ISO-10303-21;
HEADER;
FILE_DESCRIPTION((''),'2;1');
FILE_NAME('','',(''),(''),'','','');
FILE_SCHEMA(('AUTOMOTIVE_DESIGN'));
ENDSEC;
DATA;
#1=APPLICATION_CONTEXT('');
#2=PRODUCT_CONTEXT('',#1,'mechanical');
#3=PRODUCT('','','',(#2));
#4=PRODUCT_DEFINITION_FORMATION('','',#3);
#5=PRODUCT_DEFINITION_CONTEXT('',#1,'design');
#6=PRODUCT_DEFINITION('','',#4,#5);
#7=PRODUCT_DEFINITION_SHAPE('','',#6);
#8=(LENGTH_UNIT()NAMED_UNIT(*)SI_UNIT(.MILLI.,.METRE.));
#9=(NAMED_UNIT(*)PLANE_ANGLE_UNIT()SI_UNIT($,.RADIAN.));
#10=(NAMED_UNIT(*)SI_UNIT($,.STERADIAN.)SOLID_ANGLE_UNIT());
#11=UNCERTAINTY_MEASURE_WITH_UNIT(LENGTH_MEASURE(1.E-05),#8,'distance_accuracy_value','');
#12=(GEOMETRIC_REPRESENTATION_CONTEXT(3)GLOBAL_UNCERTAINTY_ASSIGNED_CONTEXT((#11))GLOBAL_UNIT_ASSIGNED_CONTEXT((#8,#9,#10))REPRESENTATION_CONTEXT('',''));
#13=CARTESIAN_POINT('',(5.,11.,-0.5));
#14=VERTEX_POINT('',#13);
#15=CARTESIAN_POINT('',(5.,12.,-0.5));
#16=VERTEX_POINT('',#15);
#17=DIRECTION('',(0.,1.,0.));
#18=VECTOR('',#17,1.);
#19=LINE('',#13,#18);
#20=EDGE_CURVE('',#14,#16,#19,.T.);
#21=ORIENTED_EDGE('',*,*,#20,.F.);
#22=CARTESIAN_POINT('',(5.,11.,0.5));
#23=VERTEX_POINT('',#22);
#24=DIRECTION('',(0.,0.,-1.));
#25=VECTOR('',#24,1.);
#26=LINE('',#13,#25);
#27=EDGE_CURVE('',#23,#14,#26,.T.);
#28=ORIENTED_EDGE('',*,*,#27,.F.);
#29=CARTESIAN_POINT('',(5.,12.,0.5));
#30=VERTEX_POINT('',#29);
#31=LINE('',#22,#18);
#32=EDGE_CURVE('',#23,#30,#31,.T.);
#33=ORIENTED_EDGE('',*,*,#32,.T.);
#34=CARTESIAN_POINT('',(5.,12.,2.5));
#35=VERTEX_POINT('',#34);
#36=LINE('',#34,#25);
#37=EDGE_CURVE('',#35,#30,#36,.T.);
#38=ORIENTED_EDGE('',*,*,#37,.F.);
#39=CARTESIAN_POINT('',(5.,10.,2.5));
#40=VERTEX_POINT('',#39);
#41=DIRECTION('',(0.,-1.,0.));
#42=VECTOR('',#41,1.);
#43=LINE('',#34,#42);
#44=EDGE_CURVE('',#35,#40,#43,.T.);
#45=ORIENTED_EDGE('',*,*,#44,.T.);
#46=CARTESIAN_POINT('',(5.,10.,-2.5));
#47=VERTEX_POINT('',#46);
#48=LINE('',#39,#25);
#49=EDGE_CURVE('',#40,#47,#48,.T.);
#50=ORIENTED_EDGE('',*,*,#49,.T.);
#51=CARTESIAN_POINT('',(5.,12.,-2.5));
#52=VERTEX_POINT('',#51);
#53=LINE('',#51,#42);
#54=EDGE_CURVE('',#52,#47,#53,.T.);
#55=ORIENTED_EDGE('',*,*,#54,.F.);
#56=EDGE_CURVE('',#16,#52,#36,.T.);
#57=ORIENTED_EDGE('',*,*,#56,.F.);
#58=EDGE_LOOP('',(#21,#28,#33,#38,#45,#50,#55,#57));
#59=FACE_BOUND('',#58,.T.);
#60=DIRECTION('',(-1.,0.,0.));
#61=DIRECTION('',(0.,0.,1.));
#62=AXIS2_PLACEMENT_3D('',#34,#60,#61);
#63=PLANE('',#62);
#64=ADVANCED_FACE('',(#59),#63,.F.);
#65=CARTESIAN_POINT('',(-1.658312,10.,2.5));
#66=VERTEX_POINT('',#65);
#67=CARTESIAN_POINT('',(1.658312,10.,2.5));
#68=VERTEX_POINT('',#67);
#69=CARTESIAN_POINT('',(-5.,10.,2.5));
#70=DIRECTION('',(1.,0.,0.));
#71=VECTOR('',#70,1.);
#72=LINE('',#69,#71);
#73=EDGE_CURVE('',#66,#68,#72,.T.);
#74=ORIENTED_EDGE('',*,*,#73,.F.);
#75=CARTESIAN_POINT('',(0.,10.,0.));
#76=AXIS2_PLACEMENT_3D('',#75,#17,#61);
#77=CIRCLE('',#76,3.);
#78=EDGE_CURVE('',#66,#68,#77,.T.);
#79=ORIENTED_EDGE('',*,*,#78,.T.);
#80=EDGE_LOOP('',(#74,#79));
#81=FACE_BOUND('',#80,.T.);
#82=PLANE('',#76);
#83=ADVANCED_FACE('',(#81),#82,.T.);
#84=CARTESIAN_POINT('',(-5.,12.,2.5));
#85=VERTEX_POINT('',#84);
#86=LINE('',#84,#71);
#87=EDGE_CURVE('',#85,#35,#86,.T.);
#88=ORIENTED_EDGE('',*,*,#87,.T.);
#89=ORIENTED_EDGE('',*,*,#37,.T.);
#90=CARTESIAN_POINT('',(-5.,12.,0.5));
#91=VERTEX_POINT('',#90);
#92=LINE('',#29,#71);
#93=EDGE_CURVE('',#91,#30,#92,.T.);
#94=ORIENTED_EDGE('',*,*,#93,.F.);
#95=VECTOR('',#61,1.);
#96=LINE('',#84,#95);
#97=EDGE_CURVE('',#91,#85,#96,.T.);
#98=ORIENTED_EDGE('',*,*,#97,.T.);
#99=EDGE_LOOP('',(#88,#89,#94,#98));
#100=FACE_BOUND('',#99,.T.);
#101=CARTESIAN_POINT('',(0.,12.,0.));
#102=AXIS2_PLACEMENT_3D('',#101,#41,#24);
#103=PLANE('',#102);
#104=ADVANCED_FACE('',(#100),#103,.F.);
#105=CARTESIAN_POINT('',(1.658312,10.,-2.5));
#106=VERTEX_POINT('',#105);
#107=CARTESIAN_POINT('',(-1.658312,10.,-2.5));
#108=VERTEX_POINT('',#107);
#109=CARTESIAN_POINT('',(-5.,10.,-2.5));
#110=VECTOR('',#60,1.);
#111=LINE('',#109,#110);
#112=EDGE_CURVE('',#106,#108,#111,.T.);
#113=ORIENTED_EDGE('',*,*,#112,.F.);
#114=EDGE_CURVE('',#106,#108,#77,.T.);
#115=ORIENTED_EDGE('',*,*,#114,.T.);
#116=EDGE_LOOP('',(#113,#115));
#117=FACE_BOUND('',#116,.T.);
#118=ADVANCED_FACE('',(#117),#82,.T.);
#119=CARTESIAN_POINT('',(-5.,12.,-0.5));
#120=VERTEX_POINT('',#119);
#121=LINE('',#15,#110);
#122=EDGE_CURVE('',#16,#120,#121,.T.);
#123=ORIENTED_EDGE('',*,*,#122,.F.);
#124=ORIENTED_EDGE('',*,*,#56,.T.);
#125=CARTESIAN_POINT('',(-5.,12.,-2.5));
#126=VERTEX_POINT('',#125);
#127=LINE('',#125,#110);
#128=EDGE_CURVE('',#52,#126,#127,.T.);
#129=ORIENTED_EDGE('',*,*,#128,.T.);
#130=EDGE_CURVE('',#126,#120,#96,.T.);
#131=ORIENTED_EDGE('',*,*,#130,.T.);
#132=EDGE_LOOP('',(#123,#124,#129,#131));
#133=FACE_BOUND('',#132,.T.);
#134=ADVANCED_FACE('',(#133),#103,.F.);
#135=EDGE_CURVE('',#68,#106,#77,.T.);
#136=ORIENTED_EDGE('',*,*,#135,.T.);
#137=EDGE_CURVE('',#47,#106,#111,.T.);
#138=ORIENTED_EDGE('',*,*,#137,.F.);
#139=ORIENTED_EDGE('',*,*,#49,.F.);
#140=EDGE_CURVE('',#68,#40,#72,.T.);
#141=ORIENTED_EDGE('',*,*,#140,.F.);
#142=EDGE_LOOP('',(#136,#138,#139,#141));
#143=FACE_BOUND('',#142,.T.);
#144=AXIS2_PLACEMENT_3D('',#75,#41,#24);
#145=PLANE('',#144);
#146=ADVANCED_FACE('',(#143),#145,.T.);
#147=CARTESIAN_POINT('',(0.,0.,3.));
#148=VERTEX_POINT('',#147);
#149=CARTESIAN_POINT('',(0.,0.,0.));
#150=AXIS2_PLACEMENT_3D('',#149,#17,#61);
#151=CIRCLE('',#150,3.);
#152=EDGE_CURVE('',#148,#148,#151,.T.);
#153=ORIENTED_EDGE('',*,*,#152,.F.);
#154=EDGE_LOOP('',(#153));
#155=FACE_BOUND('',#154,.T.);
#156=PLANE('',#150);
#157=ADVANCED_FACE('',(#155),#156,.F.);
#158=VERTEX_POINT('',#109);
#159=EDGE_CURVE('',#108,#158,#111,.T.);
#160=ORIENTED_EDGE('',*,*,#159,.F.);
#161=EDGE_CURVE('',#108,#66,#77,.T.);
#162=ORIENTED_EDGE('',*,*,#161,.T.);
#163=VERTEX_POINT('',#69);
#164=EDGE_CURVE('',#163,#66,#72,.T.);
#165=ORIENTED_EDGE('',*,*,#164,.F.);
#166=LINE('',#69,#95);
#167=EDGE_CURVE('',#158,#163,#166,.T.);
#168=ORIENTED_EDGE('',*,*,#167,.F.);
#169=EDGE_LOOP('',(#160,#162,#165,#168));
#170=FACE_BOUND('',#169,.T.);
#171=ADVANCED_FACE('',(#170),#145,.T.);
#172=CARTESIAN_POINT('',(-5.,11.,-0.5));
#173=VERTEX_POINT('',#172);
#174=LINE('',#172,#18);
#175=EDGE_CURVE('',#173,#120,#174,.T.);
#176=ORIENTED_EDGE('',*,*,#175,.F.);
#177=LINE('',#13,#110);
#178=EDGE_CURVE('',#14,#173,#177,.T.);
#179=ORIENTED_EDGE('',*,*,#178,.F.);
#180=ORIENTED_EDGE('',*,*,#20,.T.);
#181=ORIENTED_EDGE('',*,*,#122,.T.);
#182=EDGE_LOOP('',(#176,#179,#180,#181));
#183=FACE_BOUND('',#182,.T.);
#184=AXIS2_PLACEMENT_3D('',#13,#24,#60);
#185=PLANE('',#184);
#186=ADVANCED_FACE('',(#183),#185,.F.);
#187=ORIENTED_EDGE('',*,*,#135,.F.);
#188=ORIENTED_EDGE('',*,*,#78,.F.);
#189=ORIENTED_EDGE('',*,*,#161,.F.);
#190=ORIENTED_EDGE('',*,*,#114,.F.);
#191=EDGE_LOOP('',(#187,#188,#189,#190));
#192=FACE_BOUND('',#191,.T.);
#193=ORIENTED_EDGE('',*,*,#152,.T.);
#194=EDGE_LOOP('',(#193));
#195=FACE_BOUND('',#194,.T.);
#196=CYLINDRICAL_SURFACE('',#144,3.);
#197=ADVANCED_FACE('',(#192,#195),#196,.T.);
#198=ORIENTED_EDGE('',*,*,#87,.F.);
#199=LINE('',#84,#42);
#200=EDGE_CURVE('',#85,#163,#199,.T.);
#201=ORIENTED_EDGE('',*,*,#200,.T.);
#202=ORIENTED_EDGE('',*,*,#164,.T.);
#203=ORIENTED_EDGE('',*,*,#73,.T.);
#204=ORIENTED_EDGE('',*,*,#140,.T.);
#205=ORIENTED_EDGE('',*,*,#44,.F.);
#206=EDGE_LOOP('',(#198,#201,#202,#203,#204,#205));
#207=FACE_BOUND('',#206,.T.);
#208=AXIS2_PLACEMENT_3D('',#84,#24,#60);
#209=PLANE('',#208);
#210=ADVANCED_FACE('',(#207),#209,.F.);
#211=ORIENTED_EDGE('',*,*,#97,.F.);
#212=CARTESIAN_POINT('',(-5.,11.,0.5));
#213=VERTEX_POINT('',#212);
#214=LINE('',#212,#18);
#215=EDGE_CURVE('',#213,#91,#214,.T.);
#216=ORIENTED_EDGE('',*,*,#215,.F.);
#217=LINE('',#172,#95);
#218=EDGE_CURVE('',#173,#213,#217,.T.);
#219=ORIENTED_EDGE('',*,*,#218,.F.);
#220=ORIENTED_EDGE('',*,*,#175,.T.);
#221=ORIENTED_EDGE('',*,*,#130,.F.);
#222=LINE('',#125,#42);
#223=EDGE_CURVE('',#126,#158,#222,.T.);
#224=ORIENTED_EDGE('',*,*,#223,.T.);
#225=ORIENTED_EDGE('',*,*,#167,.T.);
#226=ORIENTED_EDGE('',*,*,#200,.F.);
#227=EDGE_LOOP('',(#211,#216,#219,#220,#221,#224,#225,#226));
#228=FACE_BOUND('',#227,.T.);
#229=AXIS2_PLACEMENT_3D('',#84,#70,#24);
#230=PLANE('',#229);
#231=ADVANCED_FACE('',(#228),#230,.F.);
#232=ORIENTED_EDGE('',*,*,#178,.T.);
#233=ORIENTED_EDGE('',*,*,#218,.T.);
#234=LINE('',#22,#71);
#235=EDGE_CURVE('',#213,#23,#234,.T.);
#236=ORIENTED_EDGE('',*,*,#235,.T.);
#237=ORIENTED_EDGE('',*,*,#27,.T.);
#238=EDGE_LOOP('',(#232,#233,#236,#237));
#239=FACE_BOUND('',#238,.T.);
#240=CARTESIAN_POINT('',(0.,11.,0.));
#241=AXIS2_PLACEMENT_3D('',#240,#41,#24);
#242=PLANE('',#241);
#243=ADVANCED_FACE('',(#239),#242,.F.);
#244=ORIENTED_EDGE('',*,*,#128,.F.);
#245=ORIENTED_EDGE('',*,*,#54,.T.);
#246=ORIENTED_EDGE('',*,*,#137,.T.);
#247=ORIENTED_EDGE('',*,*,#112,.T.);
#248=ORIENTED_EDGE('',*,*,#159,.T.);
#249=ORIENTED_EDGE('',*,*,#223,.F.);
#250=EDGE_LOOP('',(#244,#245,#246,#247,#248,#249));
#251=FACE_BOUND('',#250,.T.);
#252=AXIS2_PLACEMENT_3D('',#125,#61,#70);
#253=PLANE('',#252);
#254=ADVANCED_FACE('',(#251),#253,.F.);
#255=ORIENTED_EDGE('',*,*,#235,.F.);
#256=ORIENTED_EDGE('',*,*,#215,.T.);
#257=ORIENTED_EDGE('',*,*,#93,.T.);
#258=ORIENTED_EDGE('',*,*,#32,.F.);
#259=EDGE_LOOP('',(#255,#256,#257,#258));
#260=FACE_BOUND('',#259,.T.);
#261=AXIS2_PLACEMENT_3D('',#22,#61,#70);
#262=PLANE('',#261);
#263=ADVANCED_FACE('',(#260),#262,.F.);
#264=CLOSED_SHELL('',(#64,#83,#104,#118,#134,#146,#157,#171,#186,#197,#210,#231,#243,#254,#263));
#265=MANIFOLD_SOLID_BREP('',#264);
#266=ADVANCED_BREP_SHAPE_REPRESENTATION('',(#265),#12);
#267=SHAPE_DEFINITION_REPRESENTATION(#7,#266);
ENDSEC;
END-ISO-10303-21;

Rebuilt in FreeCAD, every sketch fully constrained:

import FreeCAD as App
import Part
import Sketcher
Q = App.Units.Quantity

doc = App.newDocument("Part")
body = doc.addObject("PartDesign::Body", "Body")

# Sketch on XZ plane
sketch1 = body.newObject("Sketcher::SketchObject", "Sketch")
sketch1.AttachmentSupport = (doc.getObject("XZ_Plane"), [""])
sketch1.MapMode = "FlatFace"
sketch1.addGeometry(Part.Circle(App.Vector(0, 0, 0), App.Vector(0, 0, 1), 3), False)
sketch1.addConstraint(Sketcher.Constraint("Coincident", 0, 3, -1, 1))
sketch1.addConstraint(Sketcher.Constraint("Diameter", 0, Q("6 mm")))
pad1 = body.newObject("PartDesign::Pad", "Pad")
pad1.Profile = sketch1
pad1.Length = 10
pad1.Reversed = True

# Sketch on XZ plane
sketch2 = body.newObject("Sketcher::SketchObject", "Sketch001")
sketch2.AttachmentSupport = (doc.getObject("XZ_Plane"), [""])
sketch2.MapMode = "FlatFace"
sketch2.AttachmentOffset = App.Placement(App.Vector(0, 0, -10), App.Rotation())
sketch2.addGeometry(Part.LineSegment(App.Vector(-5, -2.5, 0), App.Vector(-5, 2.5, 0)), False)
sketch2.addGeometry(Part.LineSegment(App.Vector(-5, 2.5, 0), App.Vector(5, 2.5, 0)), False)
sketch2.addGeometry(Part.LineSegment(App.Vector(5, 2.5, 0), App.Vector(5, -2.5, 0)), False)
sketch2.addGeometry(Part.LineSegment(App.Vector(5, -2.5, 0), App.Vector(-5, -2.5, 0)), False)
sketch2.addConstraint(Sketcher.Constraint("Coincident", 0, 2, 1, 1))
sketch2.addConstraint(Sketcher.Constraint("Coincident", 1, 2, 2, 1))
sketch2.addConstraint(Sketcher.Constraint("Coincident", 2, 2, 3, 1))
sketch2.addConstraint(Sketcher.Constraint("Coincident", 3, 2, 0, 1))
sketch2.addConstraint(Sketcher.Constraint("Vertical", 0))
sketch2.addConstraint(Sketcher.Constraint("Horizontal", 1))
sketch2.addConstraint(Sketcher.Constraint("Vertical", 2))
sketch2.addConstraint(Sketcher.Constraint("Horizontal", 3))
sketch2.addConstraint(Sketcher.Constraint("Symmetric", 0, 2, 2, 2, -1, 1))
sketch2.addConstraint(Sketcher.Constraint("DistanceX", 1, 1, 1, 2, Q("10 mm")))
sketch2.addConstraint(Sketcher.Constraint("DistanceY", 0, 1, 0, 2, Q("5 mm")))
pad2 = body.newObject("PartDesign::Pad", "Pad001")
pad2.Profile = sketch2
pad2.Length = 2
pad2.Reversed = True

# Sketch on XZ plane
sketch3 = body.newObject("Sketcher::SketchObject", "Sketch002")
sketch3.AttachmentSupport = (doc.getObject("XZ_Plane"), [""])
sketch3.MapMode = "FlatFace"
sketch3.AttachmentOffset = App.Placement(App.Vector(0, 0, -12), App.Rotation())
sketch3.addGeometry(Part.LineSegment(App.Vector(-5, -0.5, 0), App.Vector(-5, 0.5, 0)), False)
sketch3.addGeometry(Part.LineSegment(App.Vector(-5, 0.5, 0), App.Vector(5, 0.5, 0)), False)
sketch3.addGeometry(Part.LineSegment(App.Vector(5, 0.5, 0), App.Vector(5, -0.5, 0)), False)
sketch3.addGeometry(Part.LineSegment(App.Vector(5, -0.5, 0), App.Vector(-5, -0.5, 0)), False)
sketch3.addConstraint(Sketcher.Constraint("Coincident", 0, 2, 1, 1))
sketch3.addConstraint(Sketcher.Constraint("Coincident", 1, 2, 2, 1))
sketch3.addConstraint(Sketcher.Constraint("Coincident", 2, 2, 3, 1))
sketch3.addConstraint(Sketcher.Constraint("Coincident", 3, 2, 0, 1))
sketch3.addConstraint(Sketcher.Constraint("Vertical", 0))
sketch3.addConstraint(Sketcher.Constraint("Horizontal", 1))
sketch3.addConstraint(Sketcher.Constraint("Vertical", 2))
sketch3.addConstraint(Sketcher.Constraint("Horizontal", 3))
sketch3.addConstraint(Sketcher.Constraint("Symmetric", 0, 2, 2, 2, -1, 1))
sketch3.addConstraint(Sketcher.Constraint("DistanceX", 1, 1, 1, 2, Q("10 mm")))
sketch3.addConstraint(Sketcher.Constraint("DistanceY", 0, 1, 0, 2, Q("1 mm")))
pocket1 = body.newObject("PartDesign::Pocket", "Pocket")
pocket1.Profile = sketch3
pocket1.Length = 1
pocket1.Reversed = True

doc.recompute()
